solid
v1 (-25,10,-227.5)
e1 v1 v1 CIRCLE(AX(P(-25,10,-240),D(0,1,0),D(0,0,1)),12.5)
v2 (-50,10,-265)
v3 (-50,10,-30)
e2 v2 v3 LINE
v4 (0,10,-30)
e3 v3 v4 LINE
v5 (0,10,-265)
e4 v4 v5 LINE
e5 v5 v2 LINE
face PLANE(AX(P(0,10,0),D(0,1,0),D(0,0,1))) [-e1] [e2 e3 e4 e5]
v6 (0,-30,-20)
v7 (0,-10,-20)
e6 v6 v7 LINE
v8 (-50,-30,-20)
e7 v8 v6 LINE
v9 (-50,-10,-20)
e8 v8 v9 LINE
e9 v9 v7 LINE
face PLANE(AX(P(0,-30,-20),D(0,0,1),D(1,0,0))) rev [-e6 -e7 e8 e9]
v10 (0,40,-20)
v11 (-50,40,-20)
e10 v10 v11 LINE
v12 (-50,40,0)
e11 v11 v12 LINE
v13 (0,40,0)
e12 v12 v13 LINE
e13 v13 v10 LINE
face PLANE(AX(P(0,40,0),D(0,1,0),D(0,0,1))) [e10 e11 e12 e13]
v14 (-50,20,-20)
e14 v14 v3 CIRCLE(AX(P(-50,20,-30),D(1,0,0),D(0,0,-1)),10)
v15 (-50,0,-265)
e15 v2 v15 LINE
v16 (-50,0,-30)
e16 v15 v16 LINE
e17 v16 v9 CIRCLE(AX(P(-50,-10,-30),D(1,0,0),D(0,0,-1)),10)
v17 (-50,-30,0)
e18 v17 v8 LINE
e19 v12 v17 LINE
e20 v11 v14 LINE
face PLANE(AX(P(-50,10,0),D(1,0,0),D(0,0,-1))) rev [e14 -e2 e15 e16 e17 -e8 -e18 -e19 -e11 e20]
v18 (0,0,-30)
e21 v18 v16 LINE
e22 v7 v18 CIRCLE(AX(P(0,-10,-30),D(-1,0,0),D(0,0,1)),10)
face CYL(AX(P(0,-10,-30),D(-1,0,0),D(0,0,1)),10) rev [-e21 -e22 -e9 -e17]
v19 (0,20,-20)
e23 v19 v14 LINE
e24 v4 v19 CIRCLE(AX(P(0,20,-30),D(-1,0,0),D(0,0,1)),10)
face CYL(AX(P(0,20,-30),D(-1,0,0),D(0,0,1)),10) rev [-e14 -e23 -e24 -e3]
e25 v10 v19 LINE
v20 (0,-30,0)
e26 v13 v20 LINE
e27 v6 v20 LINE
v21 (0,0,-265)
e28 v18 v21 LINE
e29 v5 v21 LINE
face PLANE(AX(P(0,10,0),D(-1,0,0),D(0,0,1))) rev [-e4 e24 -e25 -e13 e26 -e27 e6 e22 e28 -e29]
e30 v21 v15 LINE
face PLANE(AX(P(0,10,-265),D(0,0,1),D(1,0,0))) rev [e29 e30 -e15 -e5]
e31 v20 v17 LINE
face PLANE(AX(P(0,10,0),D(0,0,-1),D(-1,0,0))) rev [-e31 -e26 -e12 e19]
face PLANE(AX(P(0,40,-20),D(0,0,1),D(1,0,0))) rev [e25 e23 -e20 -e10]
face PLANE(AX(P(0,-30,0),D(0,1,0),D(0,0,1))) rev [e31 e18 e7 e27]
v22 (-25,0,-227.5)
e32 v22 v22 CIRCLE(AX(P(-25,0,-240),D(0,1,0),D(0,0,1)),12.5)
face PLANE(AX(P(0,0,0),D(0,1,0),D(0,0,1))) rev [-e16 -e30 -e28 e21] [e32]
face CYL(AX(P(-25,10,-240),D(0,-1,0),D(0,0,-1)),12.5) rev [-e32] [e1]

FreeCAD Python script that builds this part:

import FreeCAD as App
import Part
import Sketcher

V = App.Vector


def edges_at(feature, points):
    """Names of the edges that pass closest to the given points."""
    edges = feature.Shape.Edges
    near = lambda p: min(range(len(edges)), key=lambda i: edges[i].distToShape(Part.Vertex(*p))[0])
    return sorted({f"Edge{near(p) + 1}" for p in points})


def add_polygon(sketch, points):
    """Adds a closed chain of lines whose ends are joined by coincident constraints."""
    first, n = sketch.GeometryCount, len(points)
    for a, b in zip(points, points[1:] + points[:1]):
        sketch.addGeometry(Part.LineSegment(App.Vector(*a, 0), App.Vector(*b, 0)), False)
    for i in range(n):
        sketch.addConstraint(Sketcher.Constraint("Coincident", first + i, 2, first + (i + 1) % n, 1))

doc = App.newDocument("Part")
params = doc.addObject("Spreadsheet::Sheet", "Params")
for row, (alias, value) in enumerate([
    ("sketch1_diameter", "25 mm"),
    ("sketch1_width", "50 mm"),
    ("sketch1_height", "265 mm"),
    ("pad1_length", "10 mm"),
    ("sketch2_width", "50 mm"),
    ("sketch2_height", "20 mm"),
    ("pad2_length", "30 mm"),
    ("sketch3_width", "50 mm"),
    ("sketch3_height", "20 mm"),
    ("pad3_length", "30 mm"),
    ("fillet_radius", "10 mm"),
], start=1):
    params.set(f"A{row}", alias)
    params.set(f"B{row}", "=" + value)
    params.setAlias(f"B{row}", alias)

body = doc.addObject("PartDesign::Body", "Body")

sketch1 = doc.addObject("Sketcher::SketchObject", "Sketch")
body.addObject(sketch1)
sketch1.AttachmentSupport = (doc.XZ_Plane, [""])
sketch1.MapMode = "FlatFace"
add_polygon(sketch1, [(-50, -265), (-50, 0), (0, 0), (0, -265)])
sketch1.addGeometry(Part.Circle(V(-25, -240, 0), V(0, 0, 1), 12.5), False)
sketch1.addConstraint([
    Sketcher.Constraint("Vertical", 0),
    Sketcher.Constraint("Horizontal", 1),
    Sketcher.Constraint("Vertical", 2),
    Sketcher.Constraint("Horizontal", 3),
    Sketcher.Constraint("Coincident", 1, 2, -1, 1),
    Sketcher.Constraint("Diameter", 4, 25.0),
    Sketcher.Constraint("DistanceX", 1, 1, 1, 2, 50.0),
    Sketcher.Constraint("DistanceY", 0, 1, 0, 2, 265.0),
    Sketcher.Constraint("DistanceX", 4, 3, -1, 1, 25.0),
    Sketcher.Constraint("DistanceY", 4, 3, -1, 1, 240.0),
])
sketch1.setExpression("Constraints[9]", "Params.sketch1_diameter")
sketch1.setExpression("Constraints[10]", "Params.sketch1_width")
sketch1.setExpression("Constraints[11]", "Params.sketch1_height")
pad1 = doc.addObject("PartDesign::Pad", "Pad")
body.addObject(pad1)
pad1.Profile = sketch1
pad1.setExpression("Length", "Params.pad1_length")
pad1.Reversed = True

sketch2 = doc.addObject("Sketcher::SketchObject", "Sketch001")
body.addObject(sketch2)
sketch2.AttachmentSupport = (doc.XZ_Plane, [""])
sketch2.MapMode = "FlatFace"
sketch2.AttachmentOffset = App.Placement(V(0, 0, -10), App.Rotation())
add_polygon(sketch2, [(-50, -20), (-50, 0), (0, 0), (0, -20)])
sketch2.addConstraint([
    Sketcher.Constraint("Vertical", 0),
    Sketcher.Constraint("Horizontal", 1),
    Sketcher.Constraint("Vertical", 2),
    Sketcher.Constraint("Horizontal", 3),
    Sketcher.Constraint("Coincident", 1, 2, -1, 1),
    Sketcher.Constraint("DistanceX", 1, 1, 1, 2, 50.0),
    Sketcher.Constraint("DistanceY", 0, 1, 0, 2, 20.0),
])
sketch2.setExpression("Constraints[9]", "Params.sketch2_width")
sketch2.setExpression("Constraints[10]", "Params.sketch2_height")
pad2 = doc.addObject("PartDesign::Pad", "Pad001")
body.addObject(pad2)
pad2.Profile = sketch2
pad2.setExpression("Length", "Params.pad2_length")
pad2.Reversed = True

sketch3 = doc.addObject("Sketcher::SketchObject", "Sketch002")
body.addObject(sketch3)
sketch3.AttachmentSupport = (doc.XZ_Plane, [""])
sketch3.MapMode = "FlatFace"
add_polygon(sketch3, [(-50, 0), (-50, -20), (0, -20), (0, 0)])
sketch3.addConstraint([
    Sketcher.Constraint("Vertical", 0),
    Sketcher.Constraint("Horizontal", 1),
    Sketcher.Constraint("Vertical", 2),
    Sketcher.Constraint("Horizontal", 3),
    Sketcher.Constraint("Coincident", 2, 2, -1, 1),
    Sketcher.Constraint("DistanceX", 1, 1, 1, 2, 50.0),
    Sketcher.Constraint("DistanceY", 0, 2, 0, 1, 20.0),
])
sketch3.setExpression("Constraints[9]", "Params.sketch3_width")
sketch3.setExpression("Constraints[10]", "Params.sketch3_height")
pad3 = doc.addObject("PartDesign::Pad", "Pad002")
body.addObject(pad3)
pad3.Profile = sketch3
pad3.setExpression("Length", "Params.pad3_length")
doc.recompute()

fillet = doc.addObject("PartDesign::Fillet", "Fillet")
body.addObject(fillet)
fillet.Base = (pad3, edges_at(pad3, [(-25, 10, -20), (-25, 0, -20)]))
fillet.setExpression("Radius", "Params.fillet_radius")

doc.recompute()
